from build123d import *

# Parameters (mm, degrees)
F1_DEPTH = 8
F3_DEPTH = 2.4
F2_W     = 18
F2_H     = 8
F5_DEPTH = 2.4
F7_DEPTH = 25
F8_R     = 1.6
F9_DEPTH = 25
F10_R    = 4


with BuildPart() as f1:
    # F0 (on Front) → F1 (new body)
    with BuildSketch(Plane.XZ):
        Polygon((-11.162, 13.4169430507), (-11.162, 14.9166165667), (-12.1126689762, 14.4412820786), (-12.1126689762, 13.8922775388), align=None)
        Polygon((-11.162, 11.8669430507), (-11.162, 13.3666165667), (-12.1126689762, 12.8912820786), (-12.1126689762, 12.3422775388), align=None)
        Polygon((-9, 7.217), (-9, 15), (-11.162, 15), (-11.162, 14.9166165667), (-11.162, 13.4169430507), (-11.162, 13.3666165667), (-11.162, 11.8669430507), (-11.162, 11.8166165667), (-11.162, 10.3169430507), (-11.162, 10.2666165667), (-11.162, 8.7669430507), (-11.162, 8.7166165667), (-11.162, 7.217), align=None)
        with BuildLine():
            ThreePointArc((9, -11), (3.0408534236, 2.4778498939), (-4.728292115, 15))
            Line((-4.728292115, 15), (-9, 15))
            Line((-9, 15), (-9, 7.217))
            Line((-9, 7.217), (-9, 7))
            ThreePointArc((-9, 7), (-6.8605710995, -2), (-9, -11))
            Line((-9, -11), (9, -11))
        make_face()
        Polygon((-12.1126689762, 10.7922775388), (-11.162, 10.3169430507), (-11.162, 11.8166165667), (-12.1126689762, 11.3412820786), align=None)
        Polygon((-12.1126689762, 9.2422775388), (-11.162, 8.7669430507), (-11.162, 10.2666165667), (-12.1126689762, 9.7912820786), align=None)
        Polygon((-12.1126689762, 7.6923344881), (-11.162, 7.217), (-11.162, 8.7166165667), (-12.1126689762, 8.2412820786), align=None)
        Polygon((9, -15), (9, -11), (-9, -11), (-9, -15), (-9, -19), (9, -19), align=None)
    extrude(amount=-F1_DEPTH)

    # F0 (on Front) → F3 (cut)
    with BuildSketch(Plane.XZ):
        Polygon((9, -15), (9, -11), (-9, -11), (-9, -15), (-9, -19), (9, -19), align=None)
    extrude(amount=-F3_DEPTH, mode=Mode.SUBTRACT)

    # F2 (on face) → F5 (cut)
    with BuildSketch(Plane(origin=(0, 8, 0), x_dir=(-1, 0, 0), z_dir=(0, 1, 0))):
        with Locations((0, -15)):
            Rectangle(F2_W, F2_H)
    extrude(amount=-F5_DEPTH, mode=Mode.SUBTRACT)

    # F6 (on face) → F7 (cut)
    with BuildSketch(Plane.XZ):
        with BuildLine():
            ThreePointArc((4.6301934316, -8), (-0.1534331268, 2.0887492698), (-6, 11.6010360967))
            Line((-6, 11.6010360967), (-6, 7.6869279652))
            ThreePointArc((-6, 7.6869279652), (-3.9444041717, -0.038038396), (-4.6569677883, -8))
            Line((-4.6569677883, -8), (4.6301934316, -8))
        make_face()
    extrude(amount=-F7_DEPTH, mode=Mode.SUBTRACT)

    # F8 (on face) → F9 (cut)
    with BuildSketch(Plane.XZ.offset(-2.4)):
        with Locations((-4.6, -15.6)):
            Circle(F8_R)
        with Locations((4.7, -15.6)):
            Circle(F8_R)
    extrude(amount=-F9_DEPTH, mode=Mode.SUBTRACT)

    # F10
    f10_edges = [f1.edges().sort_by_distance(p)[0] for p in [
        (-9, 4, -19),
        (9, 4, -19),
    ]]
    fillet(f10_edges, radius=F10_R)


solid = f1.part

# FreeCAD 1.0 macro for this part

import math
import FreeCAD as App
import Part
import Sketcher


def edges_at(feature, points):
    """Names of the edges that pass closest to the given points."""
    edges = feature.Shape.Edges
    near = lambda p: min(range(len(edges)), key=lambda i: edges[i].distToShape(Part.Vertex(*p))[0])
    return sorted({f"Edge{near(p) + 1}" for p in points})

doc = App.newDocument("Part")
body = doc.addObject("PartDesign::Body", "Body")

sketch1 = body.newObject("Sketcher::SketchObject", "Sketch")
sketch1.AttachmentSupport = (doc.getObject("XZ_Plane"), [""])
sketch1.MapMode = "FlatFace"
sketch1.addGeometry([
    Part.LineSegment(App.Vector(-11.16, 14.92, 0), App.Vector(-12.11, 14.44, 0)),
    Part.LineSegment(App.Vector(-12.11, 14.44, 0), App.Vector(-12.11, 13.89, 0)),
    Part.LineSegment(App.Vector(-12.11, 13.89, 0), App.Vector(-11.16, 13.42, 0)),
    Part.LineSegment(App.Vector(-11.16, 13.42, 0), App.Vector(-11.16, 13.37, 0)),
    Part.LineSegment(App.Vector(-11.16, 13.37, 0), App.Vector(-12.11, 12.89, 0)),
    Part.LineSegment(App.Vector(-12.11, 12.89, 0), App.Vector(-12.11, 12.34, 0)),
    Part.LineSegment(App.Vector(-12.11, 12.34, 0), App.Vector(-11.16, 11.87, 0)),
    Part.LineSegment(App.Vector(-11.16, 11.87, 0), App.Vector(-11.16, 11.82, 0)),
    Part.LineSegment(App.Vector(-11.16, 11.82, 0), App.Vector(-12.11, 11.34, 0)),
    Part.LineSegment(App.Vector(-12.11, 11.34, 0), App.Vector(-12.11, 10.79, 0)),
    Part.LineSegment(App.Vector(-12.11, 10.79, 0), App.Vector(-11.16, 10.32, 0)),
    Part.LineSegment(App.Vector(-11.16, 10.32, 0), App.Vector(-11.16, 10.27, 0)),
    Part.LineSegment(App.Vector(-11.16, 10.27, 0), App.Vector(-12.11, 9.79, 0)),
    Part.LineSegment(App.Vector(-12.11, 9.79, 0), App.Vector(-12.11, 9.24, 0)),
    Part.LineSegment(App.Vector(-12.11, 9.24, 0), App.Vector(-11.16, 8.77, 0)),
    Part.LineSegment(App.Vector(-11.16, 8.77, 0), App.Vector(-11.16, 8.72, 0)),
    Part.LineSegment(App.Vector(-11.16, 8.72, 0), App.Vector(-12.11, 8.24, 0)),
    Part.LineSegment(App.Vector(-12.11, 8.24, 0), App.Vector(-12.11, 7.69, 0)),
    Part.LineSegment(App.Vector(-12.11, 7.69, 0), App.Vector(-11.16, 7.22, 0)),
    Part.LineSegment(App.Vector(-11.16, 7.22, 0), App.Vector(-9, 7.22, 0)),
    Part.LineSegment(App.Vector(-9, 7.22, 0), App.Vector(-9, 7, 0)),
    Part.ArcOfCircle(Part.Circle(App.Vector(-26.86, -2, 0), App.Vector(0, 0, 1), 20), math.radians(-27), math.radians(27)),
    Part.LineSegment(App.Vector(-9, -11, 0), App.Vector(-9, -19, 0)),
    Part.LineSegment(App.Vector(-9, -19, 0), App.Vector(9, -19, 0)),
    Part.LineSegment(App.Vector(9, -19, 0), App.Vector(9, -11, 0)),
    Part.ArcOfCircle(Part.Circle(App.Vector(-90.78, -47.06, 0), App.Vector(0, 0, 1), 106.1), math.radians(19.87), math.radians(35.8)),
    Part.LineSegment(App.Vector(-4.73, 15, 0), App.Vector(-11.16, 15, 0)),
    Part.LineSegment(App.Vector(-11.16, 15, 0), App.Vector(-11.16, 14.92, 0)),
], False)
sketch1.addConstraint([
    Sketcher.Constraint("Coincident", 0, 2, 1, 1),
    Sketcher.Constraint("Coincident", 1, 2, 2, 1),
    Sketcher.Constraint("Coincident", 2, 2, 3, 1),
    Sketcher.Constraint("Coincident", 3, 2, 4, 1),
    Sketcher.Constraint("Coincident", 4, 2, 5, 1),
    Sketcher.Constraint("Coincident", 5, 2, 6, 1),
    Sketcher.Constraint("Coincident", 6, 2, 7, 1),
    Sketcher.Constraint("Coincident", 7, 2, 8, 1),
    Sketcher.Constraint("Coincident", 8, 2, 9, 1),
    Sketcher.Constraint("Coincident", 9, 2, 10, 1),
    Sketcher.Constraint("Coincident", 10, 2, 11, 1),
    Sketcher.Constraint("Coincident", 11, 2, 12, 1),
    Sketcher.Constraint("Coincident", 12, 2, 13, 1),
    Sketcher.Constraint("Coincident", 13, 2, 14, 1),
    Sketcher.Constraint("Coincident", 14, 2, 15, 1),
    Sketcher.Constraint("Coincident", 15, 2, 16, 1),
    Sketcher.Constraint("Coincident", 16, 2, 17, 1),
    Sketcher.Constraint("Coincident", 17, 2, 18, 1),
    Sketcher.Constraint("Coincident", 18, 2, 19, 1),
    Sketcher.Constraint("Coincident", 19, 2, 20, 1),
    Sketcher.Constraint("Coincident", 20, 2, 21, 2),
    Sketcher.Constraint("Coincident", 21, 1, 22, 1),
    Sketcher.Constraint("Coincident", 22, 2, 23, 1),
    Sketcher.Constraint("Coincident", 23, 2, 24, 1),
    Sketcher.Constraint("Coincident", 24, 2, 25, 1),
    Sketcher.Constraint("Coincident", 25, 2, 26, 1),
    Sketcher.Constraint("Coincident", 26, 2, 27, 1),
    Sketcher.Constraint("Coincident", 27, 2, 0, 1),
    Sketcher.Constraint("Vertical", 1),
    Sketcher.Constraint("Vertical", 3),
    Sketcher.Constraint("Vertical", 5),
    Sketcher.Constraint("Vertical", 7),
    Sketcher.Constraint("Vertical", 9),
    Sketcher.Constraint("Vertical", 11),
    Sketcher.Constraint("Vertical", 13),
    Sketcher.Constraint("Vertical", 15),
    Sketcher.Constraint("Vertical", 17),
    Sketcher.Constraint("Horizontal", 19),
    Sketcher.Constraint("Vertical", 20),
    Sketcher.Constraint("Vertical", 22),
    Sketcher.Constraint("Horizontal", 23),
    Sketcher.Constraint("Vertical", 24),
    Sketcher.Constraint("Horizontal", 26),
    Sketcher.Constraint("Vertical", 27),
    Sketcher.Constraint("Symmetric", 21, 1, 24, 2, -2),
    Sketcher.Constraint("Parallel", 0, 4),
    Sketcher.Constraint("Parallel", 2, 6),
    Sketcher.Constraint("Parallel", 4, 8),
    Sketcher.Constraint("Parallel", 6, 10),
    Sketcher.Constraint("Parallel", 8, 12),
    Sketcher.Constraint("Parallel", 10, 14),
    Sketcher.Constraint("Parallel", 12, 16),
    Sketcher.Constraint("Parallel", 14, 18),
    Sketcher.Constraint("Vertical", 1, 2, 4, 2),
    Sketcher.Constraint("Vertical", 3, 2, 6, 2),
    Sketcher.Constraint("Vertical", 5, 2, 8, 2),
    Sketcher.Constraint("Vertical", 7, 2, 10, 2),
    Sketcher.Constraint("Vertical", 9, 2, 12, 2),
    Sketcher.Constraint("Vertical", 11, 2, 14, 2),
    Sketcher.Constraint("Vertical", 13, 2, 16, 2),
    Sketcher.Constraint("Vertical", 15, 2, 18, 2),
    Sketcher.Constraint("Vertical", 20, 2, 21, 1),
    Sketcher.Constraint("Vertical", 18, 2, 26, 2),
    Sketcher.Constraint("Equal", 1, 5),
    Sketcher.Constraint("Equal", 3, 7),
    Sketcher.Constraint("Equal", 5, 9),
    Sketcher.Constraint("Equal", 7, 11),
    Sketcher.Constraint("Equal", 9, 13),
    Sketcher.Constraint("Equal", 11, 15),
    Sketcher.Constraint("Equal", 0, 2),
    Sketcher.Constraint("Radius", 21, 20.0),
    Sketcher.Constraint("DistanceX", 23, 1, 23, 2, 18.0),
    Sketcher.Constraint("DistanceY", 22, 2, 22, 1, 8.0),
    Sketcher.Constraint("DistanceY", 21, 3, -1, 1, 2.0),
    Sketcher.Constraint("DistanceY", -1, 1, 20, 2, 7.0),
    Sketcher.Constraint("DistanceY", -1, 1, 25, 2, 15.0),
    Sketcher.Constraint("DistanceX", 19, 1, 19, 2, 2.162),
    Sketcher.Constraint("DistanceY", 20, 2, 20, 1, 0.217),
    Sketcher.Constraint("Radius", 25, 106.098349),
    Sketcher.Constraint("DistanceY", 4, 2, 0, 2, 1.55),
    Sketcher.Constraint("DistanceY", 25, 3, -1, 1, 47.0616),
    Sketcher.Constraint("Distance", 0, 1.06288),
    Sketcher.Constraint("DistanceY", 1, 2, 1, 1, 0.549005),
    Sketcher.Constraint("DistanceY", 3, 2, 3, 1, 0.050326),
    Sketcher.Constraint("DistanceY", 17, 2, 17, 1, 0.548948),
])
pad1 = body.newObject("PartDesign::Pad", "Pad")
pad1.Profile = sketch1
pad1.Length = 8
pad1.Reversed = True

sketch2 = body.newObject("Sketcher::SketchObject", "Sketch001")
sketch2.AttachmentSupport = (doc.getObject("XZ_Plane"), [""])
sketch2.MapMode = "FlatFace"
sketch2.addGeometry([
    Part.LineSegment(App.Vector(9, -11, 0), App.Vector(-9, -11, 0)),
    Part.LineSegment(App.Vector(-9, -11, 0), App.Vector(-9, -19, 0)),
    Part.LineSegment(App.Vector(-9, -19, 0), App.Vector(9, -19, 0)),
    Part.LineSegment(App.Vector(9, -19, 0), App.Vector(9, -11, 0)),
], False)
sketch2.addConstraint([
    Sketcher.Constraint("Coincident", 0, 2, 1, 1),
    Sketcher.Constraint("Coincident", 1, 2, 2, 1),
    Sketcher.Constraint("Coincident", 2, 2, 3, 1),
    Sketcher.Constraint("Coincident", 3, 2, 0, 1),
    Sketcher.Constraint("Horizontal", 0),
    Sketcher.Constraint("Vertical", 1),
    Sketcher.Constraint("Horizontal", 2),
    Sketcher.Constraint("Vertical", 3),
    Sketcher.Constraint("DistanceX", 0, 2, 0, 1, 18.0),
    Sketcher.Constraint("DistanceY", 1, 2, 1, 1, 8.0),
    Sketcher.Constraint("DistanceX", 0, 2, -1, 1, 9.0),
    Sketcher.Constraint("DistanceY", 0, 2, -1, 1, 11.0),
])
pocket1 = body.newObject("PartDesign::Pocket", "Pocket")
pocket1.Profile = sketch2
pocket1.Length = 2.4

sketch3 = body.newObject("Sketcher::SketchObject", "Sketch002")
sketch3.AttachmentSupport = (doc.getObject("XZ_Plane"), [""])
sketch3.MapMode = "FlatFace"
sketch3.AttachmentOffset = App.Placement(App.Vector(0, 0, -8), App.Rotation())
sketch3.addGeometry([
    Part.LineSegment(App.Vector(9, -11, 0), App.Vector(9, -19, 0)),
    Part.LineSegment(App.Vector(9, -19, 0), App.Vector(-9, -19, 0)),
    Part.LineSegment(App.Vector(-9, -19, 0), App.Vector(-9, -11, 0)),
    Part.LineSegment(App.Vector(-9, -11, 0), App.Vector(9, -11, 0)),
], False)
sketch3.addConstraint([
    Sketcher.Constraint("Coincident", 0, 2, 1, 1),
    Sketcher.Constraint("Coincident", 1, 2, 2, 1),
    Sketcher.Constraint("Coincident", 2, 2, 3, 1),
    Sketcher.Constraint("Coincident", 3, 2, 0, 1),
    Sketcher.Constraint("Vertical", 0),
    Sketcher.Constraint("Horizontal", 1),
    Sketcher.Constraint("Vertical", 2),
    Sketcher.Constraint("Horizontal", 3),
    Sketcher.Constraint("DistanceX", 1, 2, 1, 1, 18.0),
    Sketcher.Constraint("DistanceY", 0, 2, 0, 1, 8.0),
    Sketcher.Constraint("DistanceX", -1, 1, 0, 2, 9.0),
    Sketcher.Constraint("DistanceY", 0, 2, -1, 1, 19.0),
])
pocket2 = body.newObject("PartDesign::Pocket", "Pocket001")
pocket2.Profile = sketch3
pocket2.Length = 2.4
pocket2.Reversed = True

sketch4 = body.newObject("Sketcher::SketchObject", "Sketch003")
sketch4.AttachmentSupport = (doc.getObject("XZ_Plane"), [""])
sketch4.MapMode = "FlatFace"
sketch4.addGeometry([
    Part.ArcOfCircle(Part.Circle(App.Vector(-90.8, -47.1, 0), App.Vector(0, 0, 1), 103.1), math.radians(22.26), math.radians(34.68)),
    Part.LineSegment(App.Vector(-6, 11.6, 0), App.Vector(-6, 7.7, 0)),
    Part.ArcOfCircle(Part.Circle(App.Vector(-26.9, -2, 0), App.Vector(0, 0, 1), 23), math.radians(-15), math.radians(25)),
    Part.LineSegment(App.Vector(-4.7, -8, 0), App.Vector(4.6, -8, 0)),
], False)
sketch4.addConstraint([
    Sketcher.Constraint("Coincident", 0, 2, 1, 1),
    Sketcher.Constraint("Coincident", 1, 2, 2, 2),
    Sketcher.Constraint("Coincident", 2, 1, 3, 1),
    Sketcher.Constraint("Coincident", 3, 2, 0, 1),
    Sketcher.Constraint("Vertical", 1),
    Sketcher.Constraint("Horizontal", 3),
    Sketcher.Constraint("Radius", 2, 23.0),
    Sketcher.Constraint("DistanceY", 2, 3, -1, 1, 2.0),
    Sketcher.Constraint("DistanceX", 0, 2, -1, 1, 6.0),
    Sketcher.Constraint("DistanceY", 2, 1, -1, 1, 8.0),
    Sketcher.Constraint("Radius", 0, 103.098349),
    Sketcher.Constraint("DistanceX", 3, 1, 3, 2, 9.287161),
    Sketcher.Constraint("DistanceY", 1, 2, 1, 1, 3.914108),
    Sketcher.Constraint("DistanceY", 0, 3, -1, 1, 47.0616),
])
pocket3 = body.newObject("PartDesign::Pocket", "Pocket002")
pocket3.Profile = sketch4
pocket3.Length = 25

sketch5 = body.newObject("Sketcher::SketchObject", "Sketch004")
sketch5.AttachmentSupport = (doc.getObject("XZ_Plane"), [""])
sketch5.MapMode = "FlatFace"
sketch5.AttachmentOffset = App.Placement(App.Vector(0, 0, -2.4), App.Rotation())
sketch5.addGeometry([
    Part.Circle(App.Vector(-4.6, -15.6, 0), App.Vector(0, 0, 1), 1.6),
    Part.Circle(App.Vector(4.7, -15.6, 0), App.Vector(0, 0, 1), 1.6),
], False)
sketch5.addConstraint([
    Sketcher.Constraint("Equal", 0, 1),
    Sketcher.Constraint("Horizontal", 0, 3, 1, 3),
    Sketcher.Constraint("Diameter", 0, 3.2),
    Sketcher.Constraint("DistanceX", 0, 3, -1, 1, 4.6),
    Sketcher.Constraint("DistanceY", 0, 3, -1, 1, 15.6),
    Sketcher.Constraint("DistanceX", -1, 1, 1, 3, 4.7),
])
pocket4 = body.newObject("PartDesign::Pocket", "Pocket003")
pocket4.Profile = sketch5
pocket4.Length = 25
doc.recompute()

fillet = body.newObject("PartDesign::Fillet", "Fillet")
fillet.Base = (pocket4, edges_at(pocket4, [(-9, 4, -19), (9, 4, -19)]))
fillet.Radius = 4

doc.recompute()
